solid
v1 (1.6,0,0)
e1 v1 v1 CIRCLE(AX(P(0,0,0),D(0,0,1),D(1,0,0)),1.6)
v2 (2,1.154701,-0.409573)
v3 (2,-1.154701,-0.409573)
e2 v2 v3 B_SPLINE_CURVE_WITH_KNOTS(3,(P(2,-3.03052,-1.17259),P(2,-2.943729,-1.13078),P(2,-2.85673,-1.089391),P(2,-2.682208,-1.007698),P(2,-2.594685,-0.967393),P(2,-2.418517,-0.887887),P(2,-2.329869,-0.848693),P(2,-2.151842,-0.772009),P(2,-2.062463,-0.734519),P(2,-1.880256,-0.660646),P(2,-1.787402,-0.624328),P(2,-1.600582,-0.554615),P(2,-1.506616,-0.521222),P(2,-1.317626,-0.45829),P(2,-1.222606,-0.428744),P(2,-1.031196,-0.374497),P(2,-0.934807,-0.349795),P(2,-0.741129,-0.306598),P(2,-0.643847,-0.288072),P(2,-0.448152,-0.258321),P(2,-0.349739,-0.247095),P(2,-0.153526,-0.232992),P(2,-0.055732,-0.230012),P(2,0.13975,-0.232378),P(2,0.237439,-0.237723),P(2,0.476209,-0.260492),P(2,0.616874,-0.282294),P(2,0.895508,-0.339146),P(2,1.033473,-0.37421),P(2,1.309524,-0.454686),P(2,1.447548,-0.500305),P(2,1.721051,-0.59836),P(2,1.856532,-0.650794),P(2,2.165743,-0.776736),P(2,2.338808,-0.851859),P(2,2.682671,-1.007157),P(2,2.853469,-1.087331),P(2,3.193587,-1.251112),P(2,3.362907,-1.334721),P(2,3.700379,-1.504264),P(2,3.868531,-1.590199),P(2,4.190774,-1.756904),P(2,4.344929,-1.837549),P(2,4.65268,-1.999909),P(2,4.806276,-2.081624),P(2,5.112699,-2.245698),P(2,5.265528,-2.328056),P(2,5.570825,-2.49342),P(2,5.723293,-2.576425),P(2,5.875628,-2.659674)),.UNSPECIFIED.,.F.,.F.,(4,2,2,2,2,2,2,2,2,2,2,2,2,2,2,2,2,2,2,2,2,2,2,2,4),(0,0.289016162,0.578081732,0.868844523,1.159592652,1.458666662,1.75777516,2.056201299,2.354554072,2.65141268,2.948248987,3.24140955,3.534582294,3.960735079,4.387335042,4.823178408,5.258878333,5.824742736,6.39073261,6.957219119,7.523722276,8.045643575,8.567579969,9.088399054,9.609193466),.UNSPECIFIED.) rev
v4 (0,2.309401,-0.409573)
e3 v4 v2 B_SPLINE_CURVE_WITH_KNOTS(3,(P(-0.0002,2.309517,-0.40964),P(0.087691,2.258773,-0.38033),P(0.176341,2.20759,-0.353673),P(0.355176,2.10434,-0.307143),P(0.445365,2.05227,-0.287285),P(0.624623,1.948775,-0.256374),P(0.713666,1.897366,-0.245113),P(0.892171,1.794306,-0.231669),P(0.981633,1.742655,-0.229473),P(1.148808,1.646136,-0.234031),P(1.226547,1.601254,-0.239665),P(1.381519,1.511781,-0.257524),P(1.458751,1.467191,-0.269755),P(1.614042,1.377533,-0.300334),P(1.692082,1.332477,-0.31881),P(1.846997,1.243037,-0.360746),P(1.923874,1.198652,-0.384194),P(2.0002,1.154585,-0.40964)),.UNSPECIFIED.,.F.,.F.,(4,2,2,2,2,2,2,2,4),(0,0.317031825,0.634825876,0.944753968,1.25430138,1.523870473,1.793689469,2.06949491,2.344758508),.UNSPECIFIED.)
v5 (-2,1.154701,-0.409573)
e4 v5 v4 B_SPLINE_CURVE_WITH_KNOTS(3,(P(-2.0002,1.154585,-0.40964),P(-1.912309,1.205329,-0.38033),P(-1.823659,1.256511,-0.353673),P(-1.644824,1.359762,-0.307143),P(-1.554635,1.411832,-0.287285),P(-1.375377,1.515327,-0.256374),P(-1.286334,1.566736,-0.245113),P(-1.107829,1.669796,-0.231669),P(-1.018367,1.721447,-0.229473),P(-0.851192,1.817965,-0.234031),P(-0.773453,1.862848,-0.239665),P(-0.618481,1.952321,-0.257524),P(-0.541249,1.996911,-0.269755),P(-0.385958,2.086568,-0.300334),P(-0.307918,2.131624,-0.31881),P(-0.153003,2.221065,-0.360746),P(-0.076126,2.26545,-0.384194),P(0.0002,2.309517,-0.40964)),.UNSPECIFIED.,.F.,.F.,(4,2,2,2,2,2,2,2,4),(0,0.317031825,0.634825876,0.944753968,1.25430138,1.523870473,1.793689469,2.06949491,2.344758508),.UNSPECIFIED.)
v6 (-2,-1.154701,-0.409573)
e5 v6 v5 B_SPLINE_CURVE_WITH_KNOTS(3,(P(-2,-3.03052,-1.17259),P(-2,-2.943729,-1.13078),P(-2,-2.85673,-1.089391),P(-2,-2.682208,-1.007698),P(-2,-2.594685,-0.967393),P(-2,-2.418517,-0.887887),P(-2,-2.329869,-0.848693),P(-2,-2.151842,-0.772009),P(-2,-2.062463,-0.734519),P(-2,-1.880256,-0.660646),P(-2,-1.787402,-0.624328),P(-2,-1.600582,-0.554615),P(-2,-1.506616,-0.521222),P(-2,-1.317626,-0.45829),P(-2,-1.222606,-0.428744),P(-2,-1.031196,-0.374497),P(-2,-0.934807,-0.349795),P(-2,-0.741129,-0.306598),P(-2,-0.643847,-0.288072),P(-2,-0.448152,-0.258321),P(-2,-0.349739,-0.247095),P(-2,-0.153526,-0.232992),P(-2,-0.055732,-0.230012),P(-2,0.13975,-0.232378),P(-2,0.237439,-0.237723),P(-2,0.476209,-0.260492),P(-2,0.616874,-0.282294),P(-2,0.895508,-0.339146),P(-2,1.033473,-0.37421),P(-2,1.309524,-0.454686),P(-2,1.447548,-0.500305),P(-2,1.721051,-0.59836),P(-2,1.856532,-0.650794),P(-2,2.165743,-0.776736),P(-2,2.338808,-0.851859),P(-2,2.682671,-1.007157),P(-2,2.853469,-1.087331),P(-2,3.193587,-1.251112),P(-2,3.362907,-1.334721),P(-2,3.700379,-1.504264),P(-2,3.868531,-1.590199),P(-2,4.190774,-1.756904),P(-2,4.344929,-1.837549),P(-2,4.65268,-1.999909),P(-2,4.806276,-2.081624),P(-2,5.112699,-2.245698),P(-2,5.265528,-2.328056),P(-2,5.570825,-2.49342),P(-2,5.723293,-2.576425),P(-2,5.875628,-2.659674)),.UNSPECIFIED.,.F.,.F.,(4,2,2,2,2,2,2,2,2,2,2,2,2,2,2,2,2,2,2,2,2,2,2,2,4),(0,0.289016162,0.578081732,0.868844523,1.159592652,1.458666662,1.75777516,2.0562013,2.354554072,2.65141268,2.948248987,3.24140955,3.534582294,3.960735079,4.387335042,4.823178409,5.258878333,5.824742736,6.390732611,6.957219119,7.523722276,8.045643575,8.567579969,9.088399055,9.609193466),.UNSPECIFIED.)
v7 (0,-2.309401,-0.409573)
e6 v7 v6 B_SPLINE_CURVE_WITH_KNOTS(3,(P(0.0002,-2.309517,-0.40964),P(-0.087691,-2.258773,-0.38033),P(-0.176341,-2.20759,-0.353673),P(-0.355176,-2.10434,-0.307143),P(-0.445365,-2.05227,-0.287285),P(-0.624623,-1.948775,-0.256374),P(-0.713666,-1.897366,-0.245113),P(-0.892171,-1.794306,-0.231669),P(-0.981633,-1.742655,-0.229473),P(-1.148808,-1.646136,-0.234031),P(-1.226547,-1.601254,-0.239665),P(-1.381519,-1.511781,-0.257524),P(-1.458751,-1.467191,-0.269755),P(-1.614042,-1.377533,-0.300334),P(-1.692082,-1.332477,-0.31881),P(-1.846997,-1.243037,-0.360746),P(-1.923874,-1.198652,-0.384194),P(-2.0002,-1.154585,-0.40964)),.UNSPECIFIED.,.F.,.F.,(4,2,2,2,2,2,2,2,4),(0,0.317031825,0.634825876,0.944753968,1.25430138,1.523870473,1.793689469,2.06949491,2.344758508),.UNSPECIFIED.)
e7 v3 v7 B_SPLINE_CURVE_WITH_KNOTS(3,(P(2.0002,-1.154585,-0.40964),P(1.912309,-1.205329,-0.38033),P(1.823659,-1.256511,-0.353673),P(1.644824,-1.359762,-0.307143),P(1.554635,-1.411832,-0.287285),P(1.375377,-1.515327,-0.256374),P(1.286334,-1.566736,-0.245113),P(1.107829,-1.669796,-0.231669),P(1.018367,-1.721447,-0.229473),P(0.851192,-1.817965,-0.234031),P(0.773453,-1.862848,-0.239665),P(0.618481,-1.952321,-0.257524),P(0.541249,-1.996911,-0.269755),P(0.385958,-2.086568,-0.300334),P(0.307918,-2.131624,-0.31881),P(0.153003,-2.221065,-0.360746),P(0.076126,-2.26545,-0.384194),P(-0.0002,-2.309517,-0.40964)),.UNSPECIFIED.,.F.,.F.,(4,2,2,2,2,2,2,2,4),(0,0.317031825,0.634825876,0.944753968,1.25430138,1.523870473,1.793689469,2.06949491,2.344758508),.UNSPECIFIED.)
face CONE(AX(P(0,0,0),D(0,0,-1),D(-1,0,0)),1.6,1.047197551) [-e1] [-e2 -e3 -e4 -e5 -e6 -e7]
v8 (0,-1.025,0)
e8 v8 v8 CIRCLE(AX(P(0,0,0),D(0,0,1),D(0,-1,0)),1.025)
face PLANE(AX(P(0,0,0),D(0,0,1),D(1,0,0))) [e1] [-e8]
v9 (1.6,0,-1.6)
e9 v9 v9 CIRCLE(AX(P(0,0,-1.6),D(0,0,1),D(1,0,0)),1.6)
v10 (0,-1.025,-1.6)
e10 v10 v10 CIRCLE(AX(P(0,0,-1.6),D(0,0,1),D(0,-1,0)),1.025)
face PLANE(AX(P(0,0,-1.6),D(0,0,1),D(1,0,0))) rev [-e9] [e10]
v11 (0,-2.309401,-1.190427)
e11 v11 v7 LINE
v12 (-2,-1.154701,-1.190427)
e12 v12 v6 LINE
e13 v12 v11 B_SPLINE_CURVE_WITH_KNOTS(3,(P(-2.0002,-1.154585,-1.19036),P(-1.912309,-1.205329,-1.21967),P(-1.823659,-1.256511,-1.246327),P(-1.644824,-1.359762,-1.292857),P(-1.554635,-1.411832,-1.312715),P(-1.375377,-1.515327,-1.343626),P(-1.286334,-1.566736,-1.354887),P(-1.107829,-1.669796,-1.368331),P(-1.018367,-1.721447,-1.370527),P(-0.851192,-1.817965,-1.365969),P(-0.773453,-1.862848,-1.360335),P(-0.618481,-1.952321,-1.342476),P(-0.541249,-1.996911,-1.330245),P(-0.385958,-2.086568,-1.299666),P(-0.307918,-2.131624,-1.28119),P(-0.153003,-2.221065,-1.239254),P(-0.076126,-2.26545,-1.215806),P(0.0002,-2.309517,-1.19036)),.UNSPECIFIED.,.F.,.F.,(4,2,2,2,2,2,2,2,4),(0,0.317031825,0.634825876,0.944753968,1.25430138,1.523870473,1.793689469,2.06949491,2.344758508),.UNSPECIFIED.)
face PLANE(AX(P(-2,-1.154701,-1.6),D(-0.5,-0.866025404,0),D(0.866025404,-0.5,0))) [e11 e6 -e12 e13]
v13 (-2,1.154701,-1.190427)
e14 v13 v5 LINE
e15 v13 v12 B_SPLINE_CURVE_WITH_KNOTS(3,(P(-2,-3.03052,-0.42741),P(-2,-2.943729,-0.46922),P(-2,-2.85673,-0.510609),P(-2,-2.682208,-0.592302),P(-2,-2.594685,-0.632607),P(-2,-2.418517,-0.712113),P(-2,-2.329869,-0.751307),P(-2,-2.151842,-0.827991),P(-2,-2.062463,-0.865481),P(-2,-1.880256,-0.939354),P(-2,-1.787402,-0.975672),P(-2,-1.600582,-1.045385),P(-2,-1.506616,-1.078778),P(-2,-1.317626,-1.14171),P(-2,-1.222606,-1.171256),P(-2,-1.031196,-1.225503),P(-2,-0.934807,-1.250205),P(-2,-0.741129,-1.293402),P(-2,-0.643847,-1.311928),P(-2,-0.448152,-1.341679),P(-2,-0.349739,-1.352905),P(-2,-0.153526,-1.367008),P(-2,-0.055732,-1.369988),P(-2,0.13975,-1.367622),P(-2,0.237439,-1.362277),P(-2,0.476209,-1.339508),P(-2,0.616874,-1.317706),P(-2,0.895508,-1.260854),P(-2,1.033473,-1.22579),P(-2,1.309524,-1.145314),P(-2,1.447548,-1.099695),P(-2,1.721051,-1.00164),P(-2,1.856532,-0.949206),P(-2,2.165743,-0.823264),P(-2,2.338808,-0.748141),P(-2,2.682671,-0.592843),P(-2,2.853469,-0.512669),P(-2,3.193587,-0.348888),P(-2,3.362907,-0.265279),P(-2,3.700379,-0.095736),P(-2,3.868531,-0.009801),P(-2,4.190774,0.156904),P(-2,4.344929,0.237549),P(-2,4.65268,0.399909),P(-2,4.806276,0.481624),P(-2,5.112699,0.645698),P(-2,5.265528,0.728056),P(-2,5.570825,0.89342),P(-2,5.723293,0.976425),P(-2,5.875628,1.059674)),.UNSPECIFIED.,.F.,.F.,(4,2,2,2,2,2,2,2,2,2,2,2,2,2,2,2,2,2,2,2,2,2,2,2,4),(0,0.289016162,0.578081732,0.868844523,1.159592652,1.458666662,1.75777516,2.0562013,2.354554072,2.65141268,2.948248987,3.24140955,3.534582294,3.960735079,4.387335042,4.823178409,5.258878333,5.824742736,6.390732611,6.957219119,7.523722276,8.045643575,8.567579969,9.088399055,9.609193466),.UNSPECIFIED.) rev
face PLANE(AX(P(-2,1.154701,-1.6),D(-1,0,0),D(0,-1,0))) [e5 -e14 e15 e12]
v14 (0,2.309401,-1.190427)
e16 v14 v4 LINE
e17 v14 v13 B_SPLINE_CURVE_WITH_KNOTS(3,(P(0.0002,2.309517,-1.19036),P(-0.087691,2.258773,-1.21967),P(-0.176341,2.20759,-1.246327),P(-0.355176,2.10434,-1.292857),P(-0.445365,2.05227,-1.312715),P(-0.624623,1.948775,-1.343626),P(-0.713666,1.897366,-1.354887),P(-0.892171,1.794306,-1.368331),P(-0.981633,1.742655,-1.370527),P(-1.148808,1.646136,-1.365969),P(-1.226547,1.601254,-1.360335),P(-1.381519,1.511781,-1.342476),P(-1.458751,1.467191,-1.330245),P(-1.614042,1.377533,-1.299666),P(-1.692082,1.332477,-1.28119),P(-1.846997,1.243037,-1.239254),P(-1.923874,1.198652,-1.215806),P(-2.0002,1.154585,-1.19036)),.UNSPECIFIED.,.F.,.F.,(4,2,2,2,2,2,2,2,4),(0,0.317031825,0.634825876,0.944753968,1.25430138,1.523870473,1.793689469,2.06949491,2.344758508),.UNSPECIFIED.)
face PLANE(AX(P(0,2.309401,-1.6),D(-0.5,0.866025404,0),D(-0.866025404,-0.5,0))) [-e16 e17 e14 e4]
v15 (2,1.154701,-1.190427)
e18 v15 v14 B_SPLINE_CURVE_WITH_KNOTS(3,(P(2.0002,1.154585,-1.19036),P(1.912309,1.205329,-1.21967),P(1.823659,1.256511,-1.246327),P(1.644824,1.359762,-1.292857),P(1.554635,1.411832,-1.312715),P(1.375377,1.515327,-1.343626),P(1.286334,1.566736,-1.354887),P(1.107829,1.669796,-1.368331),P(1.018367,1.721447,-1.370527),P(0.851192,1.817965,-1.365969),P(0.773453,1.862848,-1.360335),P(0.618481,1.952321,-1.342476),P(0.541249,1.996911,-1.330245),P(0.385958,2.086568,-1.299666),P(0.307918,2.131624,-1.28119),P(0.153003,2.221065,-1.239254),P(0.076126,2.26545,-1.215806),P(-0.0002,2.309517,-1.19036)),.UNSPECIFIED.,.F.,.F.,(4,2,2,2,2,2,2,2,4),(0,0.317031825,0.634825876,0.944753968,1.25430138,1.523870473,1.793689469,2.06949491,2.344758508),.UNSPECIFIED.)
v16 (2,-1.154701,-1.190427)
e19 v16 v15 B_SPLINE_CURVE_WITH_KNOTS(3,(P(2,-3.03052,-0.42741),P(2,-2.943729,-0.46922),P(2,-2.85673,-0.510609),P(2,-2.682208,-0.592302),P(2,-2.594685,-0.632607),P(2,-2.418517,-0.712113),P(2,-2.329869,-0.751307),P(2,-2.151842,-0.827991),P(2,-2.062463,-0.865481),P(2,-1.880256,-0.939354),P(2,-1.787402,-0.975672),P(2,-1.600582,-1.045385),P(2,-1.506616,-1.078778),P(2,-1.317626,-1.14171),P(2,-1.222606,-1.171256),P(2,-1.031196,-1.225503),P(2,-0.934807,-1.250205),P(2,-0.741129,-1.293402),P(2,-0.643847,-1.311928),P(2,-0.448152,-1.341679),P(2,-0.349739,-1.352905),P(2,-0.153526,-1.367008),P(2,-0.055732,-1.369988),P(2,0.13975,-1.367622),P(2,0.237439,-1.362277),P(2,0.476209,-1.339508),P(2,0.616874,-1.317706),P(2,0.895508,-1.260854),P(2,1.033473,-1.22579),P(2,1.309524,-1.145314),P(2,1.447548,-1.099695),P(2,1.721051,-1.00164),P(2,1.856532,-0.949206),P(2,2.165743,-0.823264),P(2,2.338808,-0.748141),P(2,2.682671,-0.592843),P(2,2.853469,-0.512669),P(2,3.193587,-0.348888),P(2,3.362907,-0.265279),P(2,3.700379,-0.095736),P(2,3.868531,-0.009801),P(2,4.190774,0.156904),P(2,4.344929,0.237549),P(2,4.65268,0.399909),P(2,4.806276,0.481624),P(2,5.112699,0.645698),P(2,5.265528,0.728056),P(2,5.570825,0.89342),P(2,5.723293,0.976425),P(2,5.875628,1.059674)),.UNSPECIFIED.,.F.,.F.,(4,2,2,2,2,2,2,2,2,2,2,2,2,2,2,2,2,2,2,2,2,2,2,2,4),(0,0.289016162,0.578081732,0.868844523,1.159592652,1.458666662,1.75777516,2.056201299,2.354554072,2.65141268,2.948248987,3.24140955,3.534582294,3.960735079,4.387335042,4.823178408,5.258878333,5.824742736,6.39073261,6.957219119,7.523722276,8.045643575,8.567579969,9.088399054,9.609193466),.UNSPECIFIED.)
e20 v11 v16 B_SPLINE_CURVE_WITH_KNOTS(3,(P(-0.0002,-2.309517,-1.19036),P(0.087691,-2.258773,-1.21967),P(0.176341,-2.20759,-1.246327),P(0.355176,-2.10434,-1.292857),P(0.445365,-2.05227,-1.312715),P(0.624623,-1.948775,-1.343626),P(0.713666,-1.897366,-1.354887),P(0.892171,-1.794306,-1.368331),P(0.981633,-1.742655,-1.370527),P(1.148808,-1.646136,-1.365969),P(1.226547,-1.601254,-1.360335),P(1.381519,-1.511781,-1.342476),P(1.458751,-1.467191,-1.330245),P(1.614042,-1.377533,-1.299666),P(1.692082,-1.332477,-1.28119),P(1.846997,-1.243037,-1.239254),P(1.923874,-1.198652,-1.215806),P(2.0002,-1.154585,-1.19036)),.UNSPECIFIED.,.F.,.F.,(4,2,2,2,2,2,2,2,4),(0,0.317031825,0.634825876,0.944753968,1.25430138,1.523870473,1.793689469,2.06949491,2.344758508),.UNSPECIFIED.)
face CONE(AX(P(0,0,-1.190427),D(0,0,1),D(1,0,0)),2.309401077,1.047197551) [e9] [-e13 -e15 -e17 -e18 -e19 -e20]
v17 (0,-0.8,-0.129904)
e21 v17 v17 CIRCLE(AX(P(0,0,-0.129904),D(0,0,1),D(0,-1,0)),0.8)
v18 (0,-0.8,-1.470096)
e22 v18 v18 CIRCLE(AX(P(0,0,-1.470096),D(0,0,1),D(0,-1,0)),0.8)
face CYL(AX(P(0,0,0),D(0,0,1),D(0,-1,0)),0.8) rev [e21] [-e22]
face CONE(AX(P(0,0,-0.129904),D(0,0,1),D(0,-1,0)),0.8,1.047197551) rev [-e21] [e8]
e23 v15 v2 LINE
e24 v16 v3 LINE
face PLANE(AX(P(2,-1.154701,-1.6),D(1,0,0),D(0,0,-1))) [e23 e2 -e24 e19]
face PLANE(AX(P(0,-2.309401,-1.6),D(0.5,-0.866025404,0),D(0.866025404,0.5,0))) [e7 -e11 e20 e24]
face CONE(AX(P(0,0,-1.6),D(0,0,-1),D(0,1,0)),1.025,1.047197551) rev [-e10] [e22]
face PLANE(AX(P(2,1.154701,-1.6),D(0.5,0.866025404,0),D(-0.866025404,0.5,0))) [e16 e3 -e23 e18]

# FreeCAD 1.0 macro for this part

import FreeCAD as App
import Part
import Sketcher
Q = App.Units.Quantity


def add_polygon(sketch, points):
    """Adds a closed chain of lines whose ends are joined by coincident constraints."""
    first, n = sketch.GeometryCount, len(points)
    for a, b in zip(points, points[1:] + points[:1]):
        sketch.addGeometry(Part.LineSegment(App.Vector(*a, 0), App.Vector(*b, 0)), False)
    for i in range(n):
        sketch.addConstraint(Sketcher.Constraint("Coincident", first + i, 2, first + (i + 1) % n, 1))

doc = App.newDocument("Part")
body = doc.addObject("PartDesign::Body", "Body")

sketch1 = body.newObject("Sketcher::SketchObject", "Sketch")
sketch1.AttachmentSupport = (doc.getObject("XY_Plane"), [""])
sketch1.MapMode = "FlatFace"
add_polygon(sketch1, [(0, 2.3), (-2, 1.2), (-2, -1.2), (0, -2.3), (2, -1.2), (2, 1.2)])
sketch1.addConstraint([
    Sketcher.Constraint("Vertical", 1),
    Sketcher.Constraint("Vertical", 4),
    Sketcher.Constraint("Symmetric", 0, 2, 3, 2, -1, 1),
    Sketcher.Constraint("Symmetric", 2, 2, 5, 2, -1, 1),
    Sketcher.Constraint("PointOnObject", 2, 2, -2),
    Sketcher.Constraint("Parallel", 2, 5),
    Sketcher.Constraint("Horizontal", 1, 2, 3, 2),
    Sketcher.Constraint("Angle", 0, Q("-150 deg")),
    Sketcher.Constraint("DistanceX", 0, 2, -1, 1, 2.0),
    Sketcher.Constraint("DistanceY", 1, 2, 1, 1, 2.309401),
])
pad1 = body.newObject("PartDesign::Pad", "Pad")
pad1.Profile = sketch1
pad1.Length = 1.6
pad1.Reversed = True

sketch2 = body.newObject("Sketcher::SketchObject", "Sketch001")
sketch2.AttachmentSupport = (doc.getObject("YZ_Plane"), [""])
sketch2.MapMode = "FlatFace"
add_polygon(sketch2, [(2.31, -1.6), (2.31, -1.19), (1.6, -1.6)])
add_polygon(sketch2, [(2.31, -0.41), (2.31, 0), (1.6, 0)])
sketch2.addConstraint([
    Sketcher.Constraint("Vertical", 0),
    Sketcher.Constraint("Horizontal", 2),
    Sketcher.Constraint("Vertical", 3),
    Sketcher.Constraint("Horizontal", 4),
    Sketcher.Constraint("PointOnObject", 3, 2, -1),
    Sketcher.Constraint("Vertical", 2, 2, 3, 2),
    Sketcher.Constraint("Vertical", 1, 2, 4, 2),
    Sketcher.Constraint("Equal", 0, 3),
    Sketcher.Constraint("Angle", 1, Q("-150 deg")),
    Sketcher.Constraint("DistanceX", -1, 1, 1, 2, 1.6),
    Sketcher.Constraint("DistanceY", 1, 2, -1, 1, 1.6),
    Sketcher.Constraint("DistanceX", 2, 1, 2, 2, 0.709401),
])
groove = body.newObject("PartDesign::Groove", "Groove")
groove.Profile = sketch2
groove.ReferenceAxis = (sketch2, ["V_Axis"])
groove.Angle = 360

sketch3 = body.newObject("Sketcher::SketchObject", "Sketch002")
sketch3.AttachmentSupport = (doc.getObject("YZ_Plane"), [""])
sketch3.MapMode = "FlatFace"
add_polygon(sketch3, [(1.02, 0), (0, 0), (0, -1.6), (1.02, -1.6), (0.8, -1.47), (0.8, -0.13)])
sketch3.addConstraint([
    Sketcher.Constraint("Horizontal", 0),
    Sketcher.Constraint("Vertical", 1),
    Sketcher.Constraint("Horizontal", 2),
    Sketcher.Constraint("Vertical", 4),
    Sketcher.Constraint("Coincident", 0, 2, -1, 1),
    Sketcher.Constraint("Vertical", 2, 2, 5, 2),
    Sketcher.Constraint("Equal", 3, 5),
    Sketcher.Constraint("Angle", 3, Q("150 deg")),
    Sketcher.Constraint("DistanceY", 1, 2, 1, 1, 1.6),
    Sketcher.Constraint("DistanceX", -1, 1, 3, 2, 0.8),
    Sketcher.Constraint("DistanceX", 0, 2, 0, 1, 1.025),
])
groove2 = body.newObject("PartDesign::Groove", "Groove001")
groove2.Profile = sketch3
groove2.ReferenceAxis = (sketch3, ["V_Axis"])
groove2.Angle = 360

doc.recompute()
